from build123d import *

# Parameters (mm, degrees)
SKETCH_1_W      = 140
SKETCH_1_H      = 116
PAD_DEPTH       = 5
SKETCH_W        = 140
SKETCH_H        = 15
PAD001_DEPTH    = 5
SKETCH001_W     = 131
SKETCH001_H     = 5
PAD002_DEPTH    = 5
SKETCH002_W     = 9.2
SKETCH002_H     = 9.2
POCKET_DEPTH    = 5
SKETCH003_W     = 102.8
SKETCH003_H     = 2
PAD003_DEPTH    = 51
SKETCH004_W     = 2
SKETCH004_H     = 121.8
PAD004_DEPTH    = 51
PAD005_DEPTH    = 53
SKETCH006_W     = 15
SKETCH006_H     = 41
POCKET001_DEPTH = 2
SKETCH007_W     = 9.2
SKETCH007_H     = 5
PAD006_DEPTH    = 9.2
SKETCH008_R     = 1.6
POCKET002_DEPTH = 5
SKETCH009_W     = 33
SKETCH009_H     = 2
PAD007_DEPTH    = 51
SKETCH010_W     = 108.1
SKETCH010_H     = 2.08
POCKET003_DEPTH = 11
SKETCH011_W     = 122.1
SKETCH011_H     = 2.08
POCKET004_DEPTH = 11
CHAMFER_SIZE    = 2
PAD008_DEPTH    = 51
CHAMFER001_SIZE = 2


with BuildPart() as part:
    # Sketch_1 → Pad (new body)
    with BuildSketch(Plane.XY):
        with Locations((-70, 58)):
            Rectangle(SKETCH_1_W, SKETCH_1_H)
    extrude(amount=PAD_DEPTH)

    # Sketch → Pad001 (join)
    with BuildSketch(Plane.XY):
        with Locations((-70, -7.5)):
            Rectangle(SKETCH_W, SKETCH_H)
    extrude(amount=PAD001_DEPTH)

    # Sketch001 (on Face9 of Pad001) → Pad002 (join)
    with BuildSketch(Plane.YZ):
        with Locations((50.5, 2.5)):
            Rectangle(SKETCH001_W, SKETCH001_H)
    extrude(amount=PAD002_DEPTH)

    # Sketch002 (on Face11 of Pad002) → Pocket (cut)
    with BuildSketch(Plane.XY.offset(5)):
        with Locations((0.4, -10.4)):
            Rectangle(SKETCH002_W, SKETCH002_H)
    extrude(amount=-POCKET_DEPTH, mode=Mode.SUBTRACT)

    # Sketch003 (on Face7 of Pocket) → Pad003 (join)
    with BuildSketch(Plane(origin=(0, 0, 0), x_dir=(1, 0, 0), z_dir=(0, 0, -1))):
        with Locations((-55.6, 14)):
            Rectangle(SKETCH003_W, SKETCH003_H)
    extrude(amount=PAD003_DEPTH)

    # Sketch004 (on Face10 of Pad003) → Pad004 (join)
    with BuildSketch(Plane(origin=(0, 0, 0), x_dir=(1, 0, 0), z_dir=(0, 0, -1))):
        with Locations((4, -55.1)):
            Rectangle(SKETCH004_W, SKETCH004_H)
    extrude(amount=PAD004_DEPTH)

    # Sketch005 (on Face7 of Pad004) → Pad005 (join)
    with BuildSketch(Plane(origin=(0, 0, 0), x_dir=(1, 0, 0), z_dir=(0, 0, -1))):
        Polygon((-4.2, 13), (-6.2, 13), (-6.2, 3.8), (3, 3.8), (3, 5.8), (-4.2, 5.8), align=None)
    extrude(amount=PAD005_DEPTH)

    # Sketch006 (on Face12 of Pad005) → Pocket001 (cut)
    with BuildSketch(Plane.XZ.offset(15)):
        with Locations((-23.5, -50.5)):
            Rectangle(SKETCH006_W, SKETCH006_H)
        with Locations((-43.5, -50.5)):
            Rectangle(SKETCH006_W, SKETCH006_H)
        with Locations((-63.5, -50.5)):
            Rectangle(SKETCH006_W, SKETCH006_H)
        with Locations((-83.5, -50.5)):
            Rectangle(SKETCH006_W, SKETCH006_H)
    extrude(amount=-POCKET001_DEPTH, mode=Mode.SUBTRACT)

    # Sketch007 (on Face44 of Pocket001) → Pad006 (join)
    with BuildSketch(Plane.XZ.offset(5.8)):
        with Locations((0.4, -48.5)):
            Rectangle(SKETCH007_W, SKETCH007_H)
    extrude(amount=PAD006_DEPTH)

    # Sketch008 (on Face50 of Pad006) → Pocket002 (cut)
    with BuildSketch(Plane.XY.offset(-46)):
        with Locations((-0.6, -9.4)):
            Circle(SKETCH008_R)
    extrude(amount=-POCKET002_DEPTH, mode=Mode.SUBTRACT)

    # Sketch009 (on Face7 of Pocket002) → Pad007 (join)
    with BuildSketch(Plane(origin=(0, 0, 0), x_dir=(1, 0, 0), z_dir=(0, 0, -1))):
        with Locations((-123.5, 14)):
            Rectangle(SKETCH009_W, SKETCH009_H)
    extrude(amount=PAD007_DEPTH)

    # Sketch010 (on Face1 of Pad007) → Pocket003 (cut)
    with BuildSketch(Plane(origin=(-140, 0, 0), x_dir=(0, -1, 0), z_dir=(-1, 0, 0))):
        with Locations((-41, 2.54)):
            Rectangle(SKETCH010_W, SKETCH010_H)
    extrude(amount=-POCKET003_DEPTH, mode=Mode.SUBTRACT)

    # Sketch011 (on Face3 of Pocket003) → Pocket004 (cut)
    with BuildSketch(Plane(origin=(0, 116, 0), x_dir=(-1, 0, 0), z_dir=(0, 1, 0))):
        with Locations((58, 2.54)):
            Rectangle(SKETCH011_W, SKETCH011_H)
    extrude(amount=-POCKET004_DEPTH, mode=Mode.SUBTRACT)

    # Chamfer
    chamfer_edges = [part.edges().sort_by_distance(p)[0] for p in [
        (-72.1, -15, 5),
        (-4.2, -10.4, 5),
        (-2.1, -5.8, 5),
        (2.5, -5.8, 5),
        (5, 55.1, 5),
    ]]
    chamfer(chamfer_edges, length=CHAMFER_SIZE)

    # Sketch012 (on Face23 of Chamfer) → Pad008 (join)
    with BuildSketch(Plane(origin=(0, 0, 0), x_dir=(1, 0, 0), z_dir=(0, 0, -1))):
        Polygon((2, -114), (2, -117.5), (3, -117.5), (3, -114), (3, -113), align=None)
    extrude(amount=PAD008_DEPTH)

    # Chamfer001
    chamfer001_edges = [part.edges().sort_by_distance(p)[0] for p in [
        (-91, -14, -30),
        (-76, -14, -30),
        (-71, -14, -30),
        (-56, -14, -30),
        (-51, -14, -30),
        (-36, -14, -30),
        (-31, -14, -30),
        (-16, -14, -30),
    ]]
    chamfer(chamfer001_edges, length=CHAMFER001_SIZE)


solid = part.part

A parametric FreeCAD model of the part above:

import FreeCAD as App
import Part
import Sketcher
from FreeCAD import Vector
Q = App.Units.Quantity


def edges_at(feature, points):
    """Names of the edges that pass closest to the given points."""
    edges = feature.Shape.Edges
    near = lambda p: min(range(len(edges)), key=lambda i: edges[i].distToShape(Part.Vertex(*p))[0])
    return sorted({f"Edge{near(p) + 1}" for p in points})


def add_polygon(sketch, points):
    """Adds a closed chain of lines whose ends are joined by coincident constraints."""
    first, n = sketch.GeometryCount, len(points)
    for a, b in zip(points, points[1:] + points[:1]):
        sketch.addGeometry(Part.LineSegment(App.Vector(*a, 0), App.Vector(*b, 0)), False)
    for i in range(n):
        sketch.addConstraint(Sketcher.Constraint("Coincident", first + i, 2, first + (i + 1) % n, 1))

doc = App.newDocument("Part")
body = doc.addObject("PartDesign::Body", "Body")

# Sketch on XY plane
sketch1 = doc.addObject("Sketcher::SketchObject", "Sketch")
body.addObject(sketch1)
sketch1.AttachmentSupport = (doc.XY_Plane, [""])
sketch1.MapMode = "FlatFace"
add_polygon(sketch1, [(-140, 116), (-140, 0), (0, 0), (0, 116)])  # lines 0-3
sketch1.addConstraint(Sketcher.Constraint("Vertical", 0))
sketch1.addConstraint(Sketcher.Constraint("Horizontal", 1))
sketch1.addConstraint(Sketcher.Constraint("Vertical", 2))
sketch1.addConstraint(Sketcher.Constraint("Horizontal", 3))
sketch1.addConstraint(Sketcher.Constraint("Coincident", 1, 2, -1, 1))
sketch1.addConstraint(Sketcher.Constraint("DistanceX", 1, 1, 1, 2, 140.0))
sketch1.addConstraint(Sketcher.Constraint("DistanceY", 0, 2, 0, 1, 116.0))
pad1 = doc.addObject("PartDesign::Pad", "Pad")
body.addObject(pad1)
pad1.Profile = sketch1
pad1.Length = 5

# Sketch on XY plane
sketch2 = doc.addObject("Sketcher::SketchObject", "Sketch001")
body.addObject(sketch2)
sketch2.AttachmentSupport = (doc.XY_Plane, [""])
sketch2.MapMode = "FlatFace"
add_polygon(sketch2, [(-140, 0), (-140, -15), (0, -15), (0, 0)])  # lines 0-3
sketch2.addConstraint(Sketcher.Constraint("Vertical", 0))
sketch2.addConstraint(Sketcher.Constraint("Horizontal", 1))
sketch2.addConstraint(Sketcher.Constraint("Vertical", 2))
sketch2.addConstraint(Sketcher.Constraint("Horizontal", 3))
sketch2.addConstraint(Sketcher.Constraint("Coincident", 2, 2, -1, 1))
sketch2.addConstraint(Sketcher.Constraint("DistanceX", 1, 1, 1, 2, 140.0))
sketch2.addConstraint(Sketcher.Constraint("DistanceY", 0, 2, 0, 1, 15.0))
pad2 = doc.addObject("PartDesign::Pad", "Pad001")
body.addObject(pad2)
pad2.Profile = sketch2
pad2.Length = 5

# Sketch on YZ plane
sketch3 = doc.addObject("Sketcher::SketchObject", "Sketch002")
body.addObject(sketch3)
sketch3.AttachmentSupport = (doc.YZ_Plane, [""])
sketch3.MapMode = "FlatFace"
add_polygon(sketch3, [(-15, 5), (-15, 0), (116, 0), (116, 5)])  # lines 0-3
sketch3.addConstraint(Sketcher.Constraint("Vertical", 0))
sketch3.addConstraint(Sketcher.Constraint("Horizontal", 1))
sketch3.addConstraint(Sketcher.Constraint("Vertical", 2))
sketch3.addConstraint(Sketcher.Constraint("Horizontal", 3))
sketch3.addConstraint(Sketcher.Constraint("PointOnObject", 0, 2, -1))
sketch3.addConstraint(Sketcher.Constraint("DistanceX", 1, 1, 1, 2, 131.0))
sketch3.addConstraint(Sketcher.Constraint("DistanceY", 0, 2, 0, 1, 5.0))
sketch3.addConstraint(Sketcher.Constraint("DistanceX", 0, 2, -1, 1, 15.0))
pad3 = doc.addObject("PartDesign::Pad", "Pad002")
body.addObject(pad3)
pad3.Profile = sketch3
pad3.Length = 5

# Sketch on XY plane
sketch4 = doc.addObject("Sketcher::SketchObject", "Sketch003")
body.addObject(sketch4)
sketch4.AttachmentSupport = (doc.XY_Plane, [""])
sketch4.MapMode = "FlatFace"
sketch4.AttachmentOffset = App.Placement(Vector(0, 0, 5), App.Rotation())
add_polygon(sketch4, [(-4, -6), (-4, -15), (5, -15), (5, -6)])  # lines 0-3
sketch4.addConstraint(Sketcher.Constraint("Vertical", 0))
sketch4.addConstraint(Sketcher.Constraint("Horizontal", 1))
sketch4.addConstraint(Sketcher.Constraint("Vertical", 2))
sketch4.addConstraint(Sketcher.Constraint("Horizontal", 3))
sketch4.addConstraint(Sketcher.Constraint("Equal", 3, 0))
sketch4.addConstraint(Sketcher.Constraint("DistanceX", 1, 1, 1, 2, 9.2))
sketch4.addConstraint(Sketcher.Constraint("DistanceY", 0, 2, -1, 1, 15.0))
sketch4.addConstraint(Sketcher.Constraint("DistanceX", -1, 1, 1, 2, 5.0))
pocket1 = doc.addObject("PartDesign::Pocket", "Pocket")
body.addObject(pocket1)
pocket1.Profile = sketch4
pocket1.Length = 5

# Sketch on XY plane
sketch5 = doc.addObject("Sketcher::SketchObject", "Sketch004")
body.addObject(sketch5)
sketch5.AttachmentSupport = (doc.XY_Plane, [""])
sketch5.MapMode = "FlatFace"
add_polygon(sketch5, [(-107, -15), (-107, -13), (-4.2, -13), (-4.2, -15)])  # lines 0-3
sketch5.addConstraint(Sketcher.Constraint("Vertical", 0))
sketch5.addConstraint(Sketcher.Constraint("Horizontal", 1))
sketch5.addConstraint(Sketcher.Constraint("Vertical", 2))
sketch5.addConstraint(Sketcher.Constraint("Horizontal", 3))
sketch5.addConstraint(Sketcher.Constraint("DistanceY", 0, 1, 0, 2, 2.0))
sketch5.addConstraint(Sketcher.Constraint("DistanceX", 1, 1, 1, 2, 102.8))
sketch5.addConstraint(Sketcher.Constraint("DistanceX", 0, 2, -1, 1, 107.0))
sketch5.addConstraint(Sketcher.Constraint("DistanceY", 0, 2, -1, 1, 13.0))
pad4 = doc.addObject("PartDesign::Pad", "Pad003")
body.addObject(pad4)
pad4.Profile = sketch5
pad4.Length = 51
pad4.Reversed = True

# Sketch on XY plane
sketch6 = doc.addObject("Sketcher::SketchObject", "Sketch005")
body.addObject(sketch6)
sketch6.AttachmentSupport = (doc.XY_Plane, [""])
sketch6.MapMode = "FlatFace"
add_polygon(sketch6, [(3, -5.8), (3, 116), (5, 116), (5, -5.8)])  # lines 0-3
sketch6.addConstraint(Sketcher.Constraint("Vertical", 0))
sketch6.addConstraint(Sketcher.Constraint("Horizontal", 1))
sketch6.addConstraint(Sketcher.Constraint("Vertical", 2))
sketch6.addConstraint(Sketcher.Constraint("Horizontal", 3))
sketch6.addConstraint(Sketcher.Constraint("DistanceX", 1, 1, 1, 2, 2.0))
sketch6.addConstraint(Sketcher.Constraint("DistanceY", 0, 1, 0, 2, 121.8))
sketch6.addConstraint(Sketcher.Constraint("DistanceX", -1, 1, 0, 2, 3.0))
sketch6.addConstraint(Sketcher.Constraint("DistanceY", -1, 1, 0, 2, 116.0))
pad5 = doc.addObject("PartDesign::Pad", "Pad004")
body.addObject(pad5)
pad5.Profile = sketch6
pad5.Length = 51
pad5.Reversed = True

# Sketch on XY plane
sketch7 = doc.addObject("Sketcher::SketchObject", "Sketch006")
body.addObject(sketch7)
sketch7.AttachmentSupport = (doc.XY_Plane, [""])
sketch7.MapMode = "FlatFace"
add_polygon(sketch7, [(-4.2, -13), (-6.2, -13), (-6.2, -3.8), (3, -3.8), (3, -5.8), (-4.2, -5.8)])  # lines 0-5
sketch7.addConstraint(Sketcher.Constraint("Horizontal", 0))
sketch7.addConstraint(Sketcher.Constraint("Vertical", 1))
sketch7.addConstraint(Sketcher.Constraint("Horizontal", 2))
sketch7.addConstraint(Sketcher.Constraint("Vertical", 3))
sketch7.addConstraint(Sketcher.Constraint("Horizontal", 4))
sketch7.addConstraint(Sketcher.Constraint("Vertical", 5))
sketch7.addConstraint(Sketcher.Constraint("Equal", 2, 1))
sketch7.addConstraint(Sketcher.Constraint("Equal", 0, 3))
sketch7.addConstraint(Sketcher.Constraint("DistanceX", 0, 2, 0, 1, 2.0))
sketch7.addConstraint(Sketcher.Constraint("DistanceX", 2, 1, 2, 2, 9.2))
sketch7.addConstraint(Sketcher.Constraint("DistanceY", 0, 2, -1, 1, 13.0))
sketch7.addConstraint(Sketcher.Constraint("DistanceX", -1, 1, 2, 2, 3.0))
pad6 = doc.addObject("PartDesign::Pad", "Pad005")
body.addObject(pad6)
pad6.Profile = sketch7
pad6.Length = 53
pad6.Reversed = True

# Sketch on XZ plane
sketch8 = doc.addObject("Sketcher::SketchObject", "Sketch007")
body.addObject(sketch8)
sketch8.AttachmentSupport = (doc.XZ_Plane, [""])
sketch8.MapMode = "FlatFace"
sketch8.AttachmentOffset = App.Placement(Vector(0, 0, 15), App.Rotation())
add_polygon(sketch8, [(-31, -30), (-31, -71), (-16, -71), (-16, -30)])  # lines 0-3
add_polygon(sketch8, [(-51, -30), (-51, -71), (-36, -71), (-36, -30)])  # lines 4-7
add_polygon(sketch8, [(-71, -30), (-71, -71), (-56, -71), (-56, -30)])  # lines 8-11
add_polygon(sketch8, [(-91, -30), (-91, -71), (-76, -71), (-76, -30)])  # lines 12-15
sketch8.addConstraint(Sketcher.Constraint("Vertical", 0))
sketch8.addConstraint(Sketcher.Constraint("Horizontal", 1))
sketch8.addConstraint(Sketcher.Constraint("Vertical", 2))
sketch8.addConstraint(Sketcher.Constraint("Horizontal", 3))
sketch8.addConstraint(Sketcher.Constraint("Vertical", 4))
sketch8.addConstraint(Sketcher.Constraint("Horizontal", 5))
sketch8.addConstraint(Sketcher.Constraint("Vertical", 6))
sketch8.addConstraint(Sketcher.Constraint("Horizontal", 7))
sketch8.addConstraint(Sketcher.Constraint("Vertical", 8))
sketch8.addConstraint(Sketcher.Constraint("Horizontal", 9))
sketch8.addConstraint(Sketcher.Constraint("Vertical", 10))
sketch8.addConstraint(Sketcher.Constraint("Horizontal", 11))
sketch8.addConstraint(Sketcher.Constraint("Vertical", 12))
sketch8.addConstraint(Sketcher.Constraint("Horizontal", 13))
sketch8.addConstraint(Sketcher.Constraint("Vertical", 14))
sketch8.addConstraint(Sketcher.Constraint("Horizontal", 15))
sketch8.addConstraint(Sketcher.Constraint("Horizontal", 1, 2, 4, 2))
sketch8.addConstraint(Sketcher.Constraint("Horizontal", 3, 2, 6, 2))
sketch8.addConstraint(Sketcher.Constraint("Horizontal", 5, 2, 8, 2))
sketch8.addConstraint(Sketcher.Constraint("Horizontal", 7, 2, 10, 2))
sketch8.addConstraint(Sketcher.Constraint("Horizontal", 9, 2, 12, 2))
sketch8.addConstraint(Sketcher.Constraint("Horizontal", 11, 2, 14, 2))
sketch8.addConstraint(Sketcher.Constraint("Equal", 3, 5))
sketch8.addConstraint(Sketcher.Constraint("Equal", 7, 9))
sketch8.addConstraint(Sketcher.Constraint("Equal", 11, 13))
sketch8.addConstraint(Sketcher.Constraint("DistanceX", 1, 1, 1, 2, 15.0))
sketch8.addConstraint(Sketcher.Constraint("DistanceY", 0, 2, 0, 1, 41.0))
sketch8.addConstraint(Sketcher.Constraint("DistanceX", 0, 2, -1, 1, 31.0))
sketch8.addConstraint(Sketcher.Constraint("DistanceY", 0, 2, -1, 1, 71.0))
sketch8.addConstraint(Sketcher.Constraint("DistanceX", 4, 2, -1, 1, 51.0))
sketch8.addConstraint(Sketcher.Constraint("DistanceX", 8, 2, -1, 1, 71.0))
sketch8.addConstraint(Sketcher.Constraint("DistanceX", 12, 2, -1, 1, 91.0))
pocket2 = doc.addObject("PartDesign::Pocket", "Pocket001")
body.addObject(pocket2)
pocket2.Profile = sketch8
pocket2.Length = 2

# Sketch on XZ plane
sketch9 = doc.addObject("Sketcher::SketchObject", "Sketch008")
body.addObject(sketch9)
sketch9.AttachmentSupport = (doc.XZ_Plane, [""])
sketch9.MapMode = "FlatFace"
sketch9.AttachmentOffset = App.Placement(Vector(0, 0, 5.8), App.Rotation())
add_polygon(sketch9, [(-4, -46), (-4, -51), (5, -51), (5, -46)])  # lines 0-3
sketch9.addConstraint(Sketcher.Constraint("Vertical", 0))
sketch9.addConstraint(Sketcher.Constraint("Horizontal", 1))
sketch9.addConstraint(Sketcher.Constraint("Vertical", 2))
sketch9.addConstraint(Sketcher.Constraint("Horizontal", 3))
sketch9.addConstraint(Sketcher.Constraint("DistanceY", 0, 2, 0, 1, 5.0))
sketch9.addConstraint(Sketcher.Constraint("DistanceX", 1, 1, 1, 2, 9.2))
sketch9.addConstraint(Sketcher.Constraint("DistanceY", 0, 2, -1, 1, 51.0))
sketch9.addConstraint(Sketcher.Constraint("DistanceX", -1, 1, 1, 2, 5.0))
pad7 = doc.addObject("PartDesign::Pad", "Pad006")
body.addObject(pad7)
pad7.Profile = sketch9
pad7.Length = 9.2

# Sketch on XY plane
sketch10 = doc.addObject("Sketcher::SketchObject", "Sketch009")
body.addObject(sketch10)
sketch10.AttachmentSupport = (doc.XY_Plane, [""])
sketch10.MapMode = "FlatFace"
sketch10.AttachmentOffset = App.Placement(Vector(0, 0, -46), App.Rotation())
sketch10.addGeometry(Part.Circle(Vector(-0.6, -9.4, 0), Vector(0, 0, 1), 1.6), False)
sketch10.addConstraint(Sketcher.Constraint("Diameter", 0, 3.2))
sketch10.addConstraint(Sketcher.Constraint("DistanceX", 0, 3, -1, 1, 0.6))
sketch10.addConstraint(Sketcher.Constraint("DistanceY", 0, 3, -1, 1, 9.4))
pocket3 = doc.addObject("PartDesign::Pocket", "Pocket002")
body.addObject(pocket3)
pocket3.Profile = sketch10
pocket3.Length = 5

# Sketch on XY plane
sketch11 = doc.addObject("Sketcher::SketchObject", "Sketch010")
body.addObject(sketch11)
sketch11.AttachmentSupport = (doc.XY_Plane, [""])
sketch11.MapMode = "FlatFace"
add_polygon(sketch11, [(-140, -15), (-140, -13), (-107, -13), (-107, -15)])  # lines 0-3
sketch11.addConstraint(Sketcher.Constraint("Vertical", 0))
sketch11.addConstraint(Sketcher.Constraint("Horizontal", 1))
sketch11.addConstraint(Sketcher.Constraint("Vertical", 2))
sketch11.addConstraint(Sketcher.Constraint("Horizontal", 3))
sketch11.addConstraint(Sketcher.Constraint("DistanceX", 1, 1, 1, 2, 33.0))
sketch11.addConstraint(Sketcher.Constraint("DistanceY", 0, 1, 0, 2, 2.0))
sketch11.addConstraint(Sketcher.Constraint("DistanceX", 0, 2, -1, 1, 140.0))
sketch11.addConstraint(Sketcher.Constraint("DistanceY", 0, 2, -1, 1, 13.0))
pad8 = doc.addObject("PartDesign::Pad", "Pad007")
body.addObject(pad8)
pad8.Profile = sketch11
pad8.Length = 51
pad8.Reversed = True

# Sketch on YZ plane
sketch12 = doc.addObject("Sketcher::SketchObject", "Sketch011")
body.addObject(sketch12)
sketch12.AttachmentSupport = (doc.YZ_Plane, [""])
sketch12.MapMode = "FlatFace"
sketch12.AttachmentOffset = App.Placement(Vector(0, 0, -140), App.Rotation())
add_polygon(sketch12, [(95, 3.6), (95, 1.5), (-13.1, 1.5), (-13.1, 3.6)])  # lines 0-3
sketch12.addConstraint(Sketcher.Constraint("Vertical", 0))
sketch12.addConstraint(Sketcher.Constraint("Horizontal", 1))
sketch12.addConstraint(Sketcher.Constraint("Vertical", 2))
sketch12.addConstraint(Sketcher.Constraint("Horizontal", 3))
sketch12.addConstraint(Sketcher.Constraint("DistanceX", 1, 2, 1, 1, 108.1))
sketch12.addConstraint(Sketcher.Constraint("DistanceY", 0, 2, 0, 1, 2.08))
sketch12.addConstraint(Sketcher.Constraint("DistanceY", -1, 1, 0, 2, 1.5))
sketch12.addConstraint(Sketcher.Constraint("DistanceX", -1, 1, 0, 2, 95.05))
pocket4 = doc.addObject("PartDesign::Pocket", "Pocket003")
body.addObject(pocket4)
pocket4.Profile = sketch12
pocket4.Length = 11
pocket4.Reversed = True

# Sketch on XZ plane
sketch13 = doc.addObject("Sketcher::SketchObject", "Sketch012")
body.addObject(sketch13)
sketch13.AttachmentSupport = (doc.XZ_Plane, [""])
sketch13.MapMode = "FlatFace"
sketch13.AttachmentOffset = App.Placement(Vector(0, 0, -116), App.Rotation())
add_polygon(sketch13, [(3, 3.6), (3, 1.5), (-119, 1.5), (-119, 3.6)])  # lines 0-3
sketch13.addConstraint(Sketcher.Constraint("Vertical", 0))
sketch13.addConstraint(Sketcher.Constraint("Horizontal", 1))
sketch13.addConstraint(Sketcher.Constraint("Vertical", 2))
sketch13.addConstraint(Sketcher.Constraint("Horizontal", 3))
sketch13.addConstraint(Sketcher.Constraint("DistanceX", 1, 2, 1, 1, 122.1))
sketch13.addConstraint(Sketcher.Constraint("DistanceY", 0, 2, 0, 1, 2.08))
sketch13.addConstraint(Sketcher.Constraint("DistanceY", -1, 1, 0, 2, 1.5))
sketch13.addConstraint(Sketcher.Constraint("DistanceX", -1, 1, 0, 2, 3.05))
pocket5 = doc.addObject("PartDesign::Pocket", "Pocket004")
body.addObject(pocket5)
pocket5.Profile = sketch13
pocket5.Length = 11
pocket5.Reversed = True
doc.recompute()

chamfer = doc.addObject("PartDesign::Chamfer", "Chamfer")
body.addObject(chamfer)
chamfer.Base = (pocket5, edges_at(pocket5, [
    (-72.1, -15, 5),
    (-4.2, -10.4, 5),
    (0.4, -5.8, 5),
    (0.4, -5.8, 5),
    (5, 55.1, 5),
]))
chamfer.Size = 2

# Sketch on XY plane
sketch14 = doc.addObject("Sketcher::SketchObject", "Sketch013")
body.addObject(sketch14)
sketch14.AttachmentSupport = (doc.XY_Plane, [""])
sketch14.MapMode = "FlatFace"
add_polygon(sketch14, [(2, 114), (2, 117.5), (3, 117.5), (3, 113)])  # lines 0-3
sketch14.addConstraint(Sketcher.Constraint("Vertical", 0))
sketch14.addConstraint(Sketcher.Constraint("Horizontal", 1))
sketch14.addConstraint(Sketcher.Constraint("Vertical", 2))
sketch14.addConstraint(Sketcher.Constraint("DistanceX", 1, 1, 1, 2, 1.0))
sketch14.addConstraint(Sketcher.Constraint("Angle", 3, Q("135 deg")))
sketch14.addConstraint(Sketcher.Constraint("DistanceY", 0, 1, 0, 2, 3.5))
sketch14.addConstraint(Sketcher.Constraint("DistanceX", -1, 1, 0, 2, 2.0))
sketch14.addConstraint(Sketcher.Constraint("DistanceY", -1, 1, 2, 2, 113.0))
pad9 = doc.addObject("PartDesign::Pad", "Pad008")
body.addObject(pad9)
pad9.Profile = sketch14
pad9.Length = 51
pad9.Reversed = True
doc.recompute()

chamfer2 = doc.addObject("PartDesign::Chamfer", "Chamfer001")
body.addObject(chamfer2)
chamfer2.Base = (pad9, edges_at(pad9, [
    (-91, -14, -30),
    (-76, -14, -30),
    (-71, -14, -30),
    (-56, -14, -30),
    (-51, -14, -30),
    (-36, -14, -30),
    (-31, -14, -30),
    (-16, -14, -30),
]))
chamfer2.Size = 2

doc.recompute()
